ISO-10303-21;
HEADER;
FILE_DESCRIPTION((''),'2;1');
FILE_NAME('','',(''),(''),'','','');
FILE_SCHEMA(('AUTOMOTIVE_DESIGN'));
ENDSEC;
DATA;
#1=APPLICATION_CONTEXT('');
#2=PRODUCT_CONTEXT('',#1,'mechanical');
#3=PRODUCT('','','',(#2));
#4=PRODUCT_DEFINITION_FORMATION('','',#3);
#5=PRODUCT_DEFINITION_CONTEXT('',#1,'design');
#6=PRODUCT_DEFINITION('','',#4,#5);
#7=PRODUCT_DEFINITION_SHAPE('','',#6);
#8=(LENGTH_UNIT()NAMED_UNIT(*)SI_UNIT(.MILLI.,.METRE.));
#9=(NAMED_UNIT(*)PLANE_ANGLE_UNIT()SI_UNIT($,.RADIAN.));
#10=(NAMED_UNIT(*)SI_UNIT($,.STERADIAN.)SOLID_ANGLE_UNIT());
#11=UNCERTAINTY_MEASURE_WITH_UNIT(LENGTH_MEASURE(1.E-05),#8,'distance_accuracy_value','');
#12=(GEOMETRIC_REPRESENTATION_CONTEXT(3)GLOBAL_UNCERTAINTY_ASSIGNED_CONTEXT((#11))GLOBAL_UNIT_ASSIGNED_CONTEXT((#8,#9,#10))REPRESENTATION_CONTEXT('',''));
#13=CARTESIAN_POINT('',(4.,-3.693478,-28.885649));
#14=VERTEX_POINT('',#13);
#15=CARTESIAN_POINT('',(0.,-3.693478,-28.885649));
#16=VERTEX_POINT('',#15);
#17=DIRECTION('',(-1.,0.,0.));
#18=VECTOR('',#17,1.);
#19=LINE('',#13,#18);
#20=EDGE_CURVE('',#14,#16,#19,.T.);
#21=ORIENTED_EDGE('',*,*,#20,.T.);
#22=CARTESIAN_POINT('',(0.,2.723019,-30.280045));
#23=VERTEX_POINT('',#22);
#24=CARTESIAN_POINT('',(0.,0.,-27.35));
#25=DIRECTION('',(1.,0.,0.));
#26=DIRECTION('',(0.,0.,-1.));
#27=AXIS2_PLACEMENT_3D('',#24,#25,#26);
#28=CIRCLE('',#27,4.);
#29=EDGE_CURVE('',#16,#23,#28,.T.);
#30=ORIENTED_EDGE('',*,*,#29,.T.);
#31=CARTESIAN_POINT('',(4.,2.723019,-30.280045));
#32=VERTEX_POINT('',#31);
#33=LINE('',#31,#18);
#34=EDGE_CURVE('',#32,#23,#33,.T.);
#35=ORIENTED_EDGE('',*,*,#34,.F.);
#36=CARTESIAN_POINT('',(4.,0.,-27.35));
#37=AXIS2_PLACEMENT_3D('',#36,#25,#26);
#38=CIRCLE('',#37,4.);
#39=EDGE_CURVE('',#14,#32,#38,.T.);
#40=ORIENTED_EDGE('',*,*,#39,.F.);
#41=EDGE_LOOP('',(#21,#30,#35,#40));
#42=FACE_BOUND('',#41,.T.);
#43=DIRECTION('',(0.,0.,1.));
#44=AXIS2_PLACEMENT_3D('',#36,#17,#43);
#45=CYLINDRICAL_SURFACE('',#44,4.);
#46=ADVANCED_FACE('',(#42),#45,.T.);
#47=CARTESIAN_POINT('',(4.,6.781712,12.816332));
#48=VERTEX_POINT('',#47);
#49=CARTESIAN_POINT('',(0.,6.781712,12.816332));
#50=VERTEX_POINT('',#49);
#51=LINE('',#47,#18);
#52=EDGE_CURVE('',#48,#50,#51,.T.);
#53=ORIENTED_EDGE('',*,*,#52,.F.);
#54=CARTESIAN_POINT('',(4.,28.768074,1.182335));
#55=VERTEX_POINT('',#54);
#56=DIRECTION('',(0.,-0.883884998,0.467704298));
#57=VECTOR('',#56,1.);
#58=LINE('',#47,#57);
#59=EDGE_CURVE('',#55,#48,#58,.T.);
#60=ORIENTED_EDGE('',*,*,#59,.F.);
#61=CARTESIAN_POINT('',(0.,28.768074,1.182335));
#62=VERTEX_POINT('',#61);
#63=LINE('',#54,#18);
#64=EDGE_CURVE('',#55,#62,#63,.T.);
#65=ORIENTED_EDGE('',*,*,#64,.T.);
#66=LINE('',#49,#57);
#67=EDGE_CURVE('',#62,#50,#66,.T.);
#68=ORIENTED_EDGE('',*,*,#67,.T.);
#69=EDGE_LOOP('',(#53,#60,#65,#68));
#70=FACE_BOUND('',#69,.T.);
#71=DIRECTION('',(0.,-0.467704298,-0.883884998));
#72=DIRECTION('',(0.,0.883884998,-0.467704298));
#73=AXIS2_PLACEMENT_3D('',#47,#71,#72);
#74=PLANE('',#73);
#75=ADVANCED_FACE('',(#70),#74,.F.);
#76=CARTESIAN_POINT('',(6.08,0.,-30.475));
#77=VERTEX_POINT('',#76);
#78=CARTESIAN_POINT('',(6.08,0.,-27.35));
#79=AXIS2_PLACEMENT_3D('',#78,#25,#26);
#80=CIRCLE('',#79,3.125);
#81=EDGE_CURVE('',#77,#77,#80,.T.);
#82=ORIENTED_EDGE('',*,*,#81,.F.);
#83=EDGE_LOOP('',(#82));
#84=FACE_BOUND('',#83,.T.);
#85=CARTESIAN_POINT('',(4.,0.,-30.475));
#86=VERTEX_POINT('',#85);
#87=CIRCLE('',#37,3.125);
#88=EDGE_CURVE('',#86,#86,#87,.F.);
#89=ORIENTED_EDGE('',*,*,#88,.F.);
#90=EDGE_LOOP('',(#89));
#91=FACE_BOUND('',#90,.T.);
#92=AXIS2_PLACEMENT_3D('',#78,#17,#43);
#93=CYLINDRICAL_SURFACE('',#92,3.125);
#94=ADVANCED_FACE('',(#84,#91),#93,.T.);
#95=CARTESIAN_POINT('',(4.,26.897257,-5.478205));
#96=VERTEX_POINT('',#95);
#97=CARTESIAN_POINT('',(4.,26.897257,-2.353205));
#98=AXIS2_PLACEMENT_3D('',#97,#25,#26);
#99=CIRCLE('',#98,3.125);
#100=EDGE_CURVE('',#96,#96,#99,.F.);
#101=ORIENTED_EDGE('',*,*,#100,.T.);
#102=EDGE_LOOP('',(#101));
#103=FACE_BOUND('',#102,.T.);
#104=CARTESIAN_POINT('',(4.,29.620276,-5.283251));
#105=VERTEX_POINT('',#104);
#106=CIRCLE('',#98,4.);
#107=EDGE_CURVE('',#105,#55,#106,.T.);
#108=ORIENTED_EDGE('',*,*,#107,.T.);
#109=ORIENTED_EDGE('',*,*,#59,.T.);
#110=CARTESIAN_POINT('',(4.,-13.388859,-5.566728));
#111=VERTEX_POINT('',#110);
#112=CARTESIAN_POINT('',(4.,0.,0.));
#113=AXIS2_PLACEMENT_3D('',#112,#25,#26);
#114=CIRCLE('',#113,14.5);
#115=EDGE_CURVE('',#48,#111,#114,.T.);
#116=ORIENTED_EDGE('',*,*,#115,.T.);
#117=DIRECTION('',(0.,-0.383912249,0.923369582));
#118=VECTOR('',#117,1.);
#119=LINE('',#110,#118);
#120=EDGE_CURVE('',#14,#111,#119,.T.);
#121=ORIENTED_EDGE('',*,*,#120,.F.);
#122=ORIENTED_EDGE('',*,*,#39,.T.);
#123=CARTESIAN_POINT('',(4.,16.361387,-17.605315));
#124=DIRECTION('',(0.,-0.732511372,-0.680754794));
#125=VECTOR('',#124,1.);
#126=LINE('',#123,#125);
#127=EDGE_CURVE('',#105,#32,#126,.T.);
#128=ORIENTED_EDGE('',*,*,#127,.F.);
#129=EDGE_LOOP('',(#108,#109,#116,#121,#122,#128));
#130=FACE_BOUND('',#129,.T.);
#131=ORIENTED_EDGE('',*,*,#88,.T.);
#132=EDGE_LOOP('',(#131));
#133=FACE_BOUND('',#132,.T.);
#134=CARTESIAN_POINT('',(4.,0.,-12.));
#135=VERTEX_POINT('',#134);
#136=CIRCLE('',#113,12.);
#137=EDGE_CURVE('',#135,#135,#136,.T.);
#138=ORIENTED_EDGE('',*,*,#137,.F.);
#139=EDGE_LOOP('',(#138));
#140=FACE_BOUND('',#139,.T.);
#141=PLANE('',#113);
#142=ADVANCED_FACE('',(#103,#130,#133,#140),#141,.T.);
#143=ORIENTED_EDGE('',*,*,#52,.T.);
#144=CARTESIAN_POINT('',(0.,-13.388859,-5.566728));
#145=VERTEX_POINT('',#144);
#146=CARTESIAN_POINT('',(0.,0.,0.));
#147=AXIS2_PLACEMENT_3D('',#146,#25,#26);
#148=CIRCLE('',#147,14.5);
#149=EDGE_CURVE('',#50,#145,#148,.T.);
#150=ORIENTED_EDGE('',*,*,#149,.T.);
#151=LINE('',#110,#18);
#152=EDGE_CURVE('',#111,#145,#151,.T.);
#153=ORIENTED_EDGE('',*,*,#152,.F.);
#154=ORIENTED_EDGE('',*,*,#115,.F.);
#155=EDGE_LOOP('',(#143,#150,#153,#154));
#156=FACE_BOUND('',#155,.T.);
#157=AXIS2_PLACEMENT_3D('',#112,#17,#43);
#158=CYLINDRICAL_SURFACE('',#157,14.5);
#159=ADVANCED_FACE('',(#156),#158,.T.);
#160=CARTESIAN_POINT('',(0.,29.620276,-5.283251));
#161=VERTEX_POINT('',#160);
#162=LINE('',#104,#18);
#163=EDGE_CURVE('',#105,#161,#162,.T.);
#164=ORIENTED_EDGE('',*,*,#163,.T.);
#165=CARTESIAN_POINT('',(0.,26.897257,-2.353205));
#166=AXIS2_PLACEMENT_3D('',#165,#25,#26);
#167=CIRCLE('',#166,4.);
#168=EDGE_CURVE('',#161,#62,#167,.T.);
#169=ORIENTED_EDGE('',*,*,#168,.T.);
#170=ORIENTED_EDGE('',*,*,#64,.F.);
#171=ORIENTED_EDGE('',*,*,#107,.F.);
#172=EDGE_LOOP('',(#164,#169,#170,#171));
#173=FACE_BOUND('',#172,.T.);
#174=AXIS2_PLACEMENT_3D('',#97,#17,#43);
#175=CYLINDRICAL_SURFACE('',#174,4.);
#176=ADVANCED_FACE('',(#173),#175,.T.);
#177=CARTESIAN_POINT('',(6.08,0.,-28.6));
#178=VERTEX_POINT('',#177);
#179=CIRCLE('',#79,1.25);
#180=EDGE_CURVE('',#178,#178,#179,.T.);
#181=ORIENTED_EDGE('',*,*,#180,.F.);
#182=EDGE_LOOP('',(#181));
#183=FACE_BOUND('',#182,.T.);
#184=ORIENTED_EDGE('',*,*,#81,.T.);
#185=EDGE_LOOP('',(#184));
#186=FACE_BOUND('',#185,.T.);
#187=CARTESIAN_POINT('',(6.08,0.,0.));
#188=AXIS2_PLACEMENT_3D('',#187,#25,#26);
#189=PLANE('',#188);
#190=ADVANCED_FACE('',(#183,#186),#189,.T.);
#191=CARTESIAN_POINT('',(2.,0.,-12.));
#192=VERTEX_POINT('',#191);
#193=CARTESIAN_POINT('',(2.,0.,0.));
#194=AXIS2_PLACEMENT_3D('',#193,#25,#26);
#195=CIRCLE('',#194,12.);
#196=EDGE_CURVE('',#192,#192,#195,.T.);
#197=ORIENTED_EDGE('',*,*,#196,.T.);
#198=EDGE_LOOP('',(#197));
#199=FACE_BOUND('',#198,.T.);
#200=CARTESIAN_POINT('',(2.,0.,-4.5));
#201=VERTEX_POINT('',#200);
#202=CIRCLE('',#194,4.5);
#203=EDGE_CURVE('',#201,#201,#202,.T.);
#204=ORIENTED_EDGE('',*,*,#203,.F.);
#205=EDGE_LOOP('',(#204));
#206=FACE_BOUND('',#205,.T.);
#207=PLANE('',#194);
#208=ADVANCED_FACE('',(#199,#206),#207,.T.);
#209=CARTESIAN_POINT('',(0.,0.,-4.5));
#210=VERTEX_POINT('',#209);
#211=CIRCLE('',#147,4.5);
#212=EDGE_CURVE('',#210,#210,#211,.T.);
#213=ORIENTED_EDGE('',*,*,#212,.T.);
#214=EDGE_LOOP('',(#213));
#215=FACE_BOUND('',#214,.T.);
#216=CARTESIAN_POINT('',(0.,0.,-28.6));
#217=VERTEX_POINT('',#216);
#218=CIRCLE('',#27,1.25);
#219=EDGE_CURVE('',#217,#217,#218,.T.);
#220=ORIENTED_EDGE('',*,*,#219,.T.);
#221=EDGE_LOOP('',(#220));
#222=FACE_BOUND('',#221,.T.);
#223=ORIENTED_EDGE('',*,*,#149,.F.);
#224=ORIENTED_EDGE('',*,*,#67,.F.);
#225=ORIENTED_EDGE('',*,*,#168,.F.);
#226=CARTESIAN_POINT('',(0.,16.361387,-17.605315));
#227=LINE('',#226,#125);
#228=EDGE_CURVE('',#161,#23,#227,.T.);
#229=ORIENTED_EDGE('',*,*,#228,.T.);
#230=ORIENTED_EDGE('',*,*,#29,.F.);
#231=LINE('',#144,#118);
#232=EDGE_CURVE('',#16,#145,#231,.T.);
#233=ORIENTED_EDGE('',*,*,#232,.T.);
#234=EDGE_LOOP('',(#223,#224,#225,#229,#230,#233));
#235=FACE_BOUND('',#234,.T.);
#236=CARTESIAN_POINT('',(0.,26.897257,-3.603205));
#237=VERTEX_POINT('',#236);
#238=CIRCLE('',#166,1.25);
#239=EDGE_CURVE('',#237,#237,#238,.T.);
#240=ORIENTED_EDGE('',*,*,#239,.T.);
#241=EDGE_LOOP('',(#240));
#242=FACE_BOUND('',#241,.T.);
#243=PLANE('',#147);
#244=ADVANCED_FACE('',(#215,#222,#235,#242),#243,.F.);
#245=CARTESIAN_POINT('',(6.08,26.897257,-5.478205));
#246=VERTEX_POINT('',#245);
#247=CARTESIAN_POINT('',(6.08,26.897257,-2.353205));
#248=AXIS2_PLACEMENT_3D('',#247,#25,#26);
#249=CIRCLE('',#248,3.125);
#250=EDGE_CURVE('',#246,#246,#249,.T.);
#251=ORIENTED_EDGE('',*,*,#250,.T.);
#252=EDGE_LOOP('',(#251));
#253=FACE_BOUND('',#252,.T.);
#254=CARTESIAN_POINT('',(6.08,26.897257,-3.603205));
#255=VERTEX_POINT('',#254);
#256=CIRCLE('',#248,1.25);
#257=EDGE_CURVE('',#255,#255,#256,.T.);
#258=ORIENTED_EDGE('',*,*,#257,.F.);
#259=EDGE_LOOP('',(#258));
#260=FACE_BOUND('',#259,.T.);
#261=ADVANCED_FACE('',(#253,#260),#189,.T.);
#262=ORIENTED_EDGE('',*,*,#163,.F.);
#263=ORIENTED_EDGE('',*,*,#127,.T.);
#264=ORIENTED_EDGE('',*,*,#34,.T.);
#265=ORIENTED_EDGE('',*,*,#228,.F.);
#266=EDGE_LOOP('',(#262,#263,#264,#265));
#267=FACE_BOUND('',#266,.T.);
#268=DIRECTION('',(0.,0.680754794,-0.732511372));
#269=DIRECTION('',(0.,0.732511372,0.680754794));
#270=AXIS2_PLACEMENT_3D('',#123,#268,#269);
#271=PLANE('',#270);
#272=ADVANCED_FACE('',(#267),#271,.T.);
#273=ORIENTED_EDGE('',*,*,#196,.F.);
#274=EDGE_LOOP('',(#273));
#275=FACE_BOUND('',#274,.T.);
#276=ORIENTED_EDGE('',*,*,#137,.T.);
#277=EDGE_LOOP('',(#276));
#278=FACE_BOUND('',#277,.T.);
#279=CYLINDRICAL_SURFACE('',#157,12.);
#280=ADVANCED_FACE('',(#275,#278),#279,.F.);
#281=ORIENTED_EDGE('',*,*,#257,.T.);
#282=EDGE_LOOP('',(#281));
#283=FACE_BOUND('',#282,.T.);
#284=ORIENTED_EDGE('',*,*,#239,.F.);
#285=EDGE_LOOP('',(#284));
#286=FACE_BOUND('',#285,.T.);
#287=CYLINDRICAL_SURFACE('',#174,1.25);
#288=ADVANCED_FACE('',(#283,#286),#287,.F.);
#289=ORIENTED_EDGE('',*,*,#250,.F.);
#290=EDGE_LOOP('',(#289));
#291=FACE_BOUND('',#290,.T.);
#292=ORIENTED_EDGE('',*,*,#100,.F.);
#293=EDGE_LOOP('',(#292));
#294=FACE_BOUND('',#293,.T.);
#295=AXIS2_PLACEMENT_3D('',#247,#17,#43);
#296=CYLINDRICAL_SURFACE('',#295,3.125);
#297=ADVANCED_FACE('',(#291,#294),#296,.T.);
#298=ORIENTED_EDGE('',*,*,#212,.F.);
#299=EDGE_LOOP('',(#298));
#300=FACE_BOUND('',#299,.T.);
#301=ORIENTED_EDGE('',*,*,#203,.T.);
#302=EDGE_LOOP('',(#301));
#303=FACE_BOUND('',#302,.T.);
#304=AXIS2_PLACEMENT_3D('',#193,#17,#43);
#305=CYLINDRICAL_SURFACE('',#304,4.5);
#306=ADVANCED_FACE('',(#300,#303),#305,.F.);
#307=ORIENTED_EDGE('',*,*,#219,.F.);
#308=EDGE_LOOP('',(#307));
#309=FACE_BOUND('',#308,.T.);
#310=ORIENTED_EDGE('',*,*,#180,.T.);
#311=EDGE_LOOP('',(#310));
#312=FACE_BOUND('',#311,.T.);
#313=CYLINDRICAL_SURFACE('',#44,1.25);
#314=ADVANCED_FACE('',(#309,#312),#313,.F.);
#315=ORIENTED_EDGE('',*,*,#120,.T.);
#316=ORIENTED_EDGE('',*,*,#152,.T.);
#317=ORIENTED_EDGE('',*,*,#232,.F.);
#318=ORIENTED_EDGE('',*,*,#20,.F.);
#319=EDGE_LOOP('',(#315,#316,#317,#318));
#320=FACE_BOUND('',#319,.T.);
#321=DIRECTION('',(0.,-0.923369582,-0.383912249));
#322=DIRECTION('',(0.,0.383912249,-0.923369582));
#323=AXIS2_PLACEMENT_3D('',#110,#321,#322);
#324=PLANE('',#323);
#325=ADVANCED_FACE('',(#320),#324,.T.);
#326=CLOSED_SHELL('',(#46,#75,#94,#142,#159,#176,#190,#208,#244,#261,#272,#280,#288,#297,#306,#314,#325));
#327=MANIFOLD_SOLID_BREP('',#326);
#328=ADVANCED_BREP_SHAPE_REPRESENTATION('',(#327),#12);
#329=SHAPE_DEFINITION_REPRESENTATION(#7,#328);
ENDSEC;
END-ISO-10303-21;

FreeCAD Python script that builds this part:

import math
import FreeCAD as App
import Part
import Sketcher
from FreeCAD import Vector
Q = App.Units.Quantity

doc = App.newDocument("Part")
body = doc.addObject("PartDesign::Body", "Body")

# Sketch on YZ plane
sketch1 = body.newObject("Sketcher::SketchObject", "Sketch")
sketch1.AttachmentSupport = (doc.getObject("YZ_Plane"), [""])
sketch1.MapMode = "FlatFace"
sketch1.addGeometry([
    Part.ArcOfCircle(Part.Circle(Vector(0, 0, 0), Vector(0, 0, 1), 14.5), math.radians(62), math.radians(203)),  # 0
    Part.LineSegment(Vector(-13.4, -5.6, 0), Vector(-3.7, -28.9, 0)),  # 1
    Part.ArcOfCircle(Part.Circle(Vector(0, -27.4, 0), Vector(0, 0, 1), 4), math.radians(-157), math.radians(-47)),  # 2
    Part.LineSegment(Vector(2.7, -30.3, 0), Vector(29.6, -5.3, 0)),  # 3
    Part.ArcOfCircle(Part.Circle(Vector(26.9, -2.4, 0), Vector(0, 0, 1), 4), math.radians(-47), math.radians(62)),  # 4
    Part.LineSegment(Vector(28.8, 1.2, 0), Vector(6.8, 12.8, 0)),  # 5
    Part.Circle(Vector(0, 0, 0), Vector(0, 0, 1), 12),  # 6
    Part.Circle(Vector(26.9, -2.4, 0), Vector(0, 0, 1), 1.2),  # 7
    Part.Circle(Vector(0, -27.4, 0), Vector(0, 0, 1), 1.2),  # 8
], False)
sketch1.addConstraint([
    Sketcher.Constraint("Tangent", 0, 2, 1, 1),
    Sketcher.Constraint("Tangent", 1, 2, 2, 1),
    Sketcher.Constraint("Tangent", 2, 2, 3, 1),
    Sketcher.Constraint("Tangent", 3, 2, 4, 1),
    Sketcher.Constraint("Tangent", 4, 2, 5, 1),
    Sketcher.Constraint("Tangent", 5, 2, 0, 1),
    Sketcher.Constraint("Coincident", 0, 3, -1, 1),
    Sketcher.Constraint("Coincident", 6, 3, -1, 1),
    Sketcher.Constraint("Coincident", 7, 3, 4, 3),
    Sketcher.Constraint("Coincident", 8, 3, 2, 3),
    Sketcher.Constraint("Equal", 2, 4),
    Sketcher.Constraint("Equal", 7, 8),
    Sketcher.Constraint("PointOnObject", 2, 3, -2),
    Sketcher.Constraint("Diameter", 6, Q("24 mm")),
    Sketcher.Constraint("Radius", 2, Q("4 mm")),
    Sketcher.Constraint("Diameter", 7, Q("2.5 mm")),
    Sketcher.Constraint("Radius", 0, Q("14.5 mm")),
    Sketcher.Constraint("DistanceY", 2, 3, -1, 1, Q("27.35 mm")),
    Sketcher.Constraint("DistanceX", 4, 2, 3, 2, Q("0.852202 mm")),
    Sketcher.Constraint("DistanceX", -1, 1, 2, 2, Q("2.723019 mm")),
])
pad1 = body.newObject("PartDesign::Pad", "Pad")
pad1.Profile = sketch1
pad1.Length = 4

# Sketch on YZ plane
sketch2 = body.newObject("Sketcher::SketchObject", "Sketch001")
sketch2.AttachmentSupport = (doc.getObject("YZ_Plane"), [""])
sketch2.MapMode = "FlatFace"
sketch2.addGeometry([
    Part.Circle(Vector(26.9, -2.4, 0), Vector(0, 0, 1), 3.1),
    Part.Circle(Vector(26.9, -2.4, 0), Vector(0, 0, 1), 1.2),
    Part.Circle(Vector(0, -27.4, 0), Vector(0, 0, 1), 3.1),
    Part.Circle(Vector(0, -27.4, 0), Vector(0, 0, 1), 1.2),
], False)
sketch2.addConstraint([
    Sketcher.Constraint("Coincident", 1, 3, 0, 3),
    Sketcher.Constraint("Coincident", 3, 3, 2, 3),
    Sketcher.Constraint("Equal", 0, 2),
    Sketcher.Constraint("Equal", 1, 3),
    Sketcher.Constraint("PointOnObject", 2, 3, -2),
    Sketcher.Constraint("Diameter", 1, Q("2.5 mm")),
    Sketcher.Constraint("Diameter", 0, Q("6.25 mm")),
    Sketcher.Constraint("DistanceY", 2, 3, -1, 1, Q("27.35 mm")),
    Sketcher.Constraint("DistanceX", -1, 1, 0, 3, Q("26.897257 mm")),
    Sketcher.Constraint("DistanceY", 0, 3, -1, 1, Q("2.353205 mm")),
])
pad2 = body.newObject("PartDesign::Pad", "Pad001")
pad2.Profile = sketch2
pad2.Length = 6.08

# Sketch on YZ plane
sketch3 = body.newObject("Sketcher::SketchObject", "Sketch002")
sketch3.AttachmentSupport = (doc.getObject("YZ_Plane"), [""])
sketch3.MapMode = "FlatFace"
sketch3.addGeometry([
    Part.Circle(Vector(0, 0, 0), Vector(0, 0, 1), 12),
    Part.Circle(Vector(0, 0, 0), Vector(0, 0, 1), 4.5),
], False)
sketch3.addConstraint([
    Sketcher.Constraint("Coincident", 0, 3, -1, 1),
    Sketcher.Constraint("Coincident", 1, 3, -1, 1),
    Sketcher.Constraint("Diameter", 0, Q("24 mm")),
    Sketcher.Constraint("Diameter", 1, Q("9 mm")),
])
pad3 = body.newObject("PartDesign::Pad", "Pad002")
pad3.Profile = sketch3
pad3.Length = 2

doc.recompute()
